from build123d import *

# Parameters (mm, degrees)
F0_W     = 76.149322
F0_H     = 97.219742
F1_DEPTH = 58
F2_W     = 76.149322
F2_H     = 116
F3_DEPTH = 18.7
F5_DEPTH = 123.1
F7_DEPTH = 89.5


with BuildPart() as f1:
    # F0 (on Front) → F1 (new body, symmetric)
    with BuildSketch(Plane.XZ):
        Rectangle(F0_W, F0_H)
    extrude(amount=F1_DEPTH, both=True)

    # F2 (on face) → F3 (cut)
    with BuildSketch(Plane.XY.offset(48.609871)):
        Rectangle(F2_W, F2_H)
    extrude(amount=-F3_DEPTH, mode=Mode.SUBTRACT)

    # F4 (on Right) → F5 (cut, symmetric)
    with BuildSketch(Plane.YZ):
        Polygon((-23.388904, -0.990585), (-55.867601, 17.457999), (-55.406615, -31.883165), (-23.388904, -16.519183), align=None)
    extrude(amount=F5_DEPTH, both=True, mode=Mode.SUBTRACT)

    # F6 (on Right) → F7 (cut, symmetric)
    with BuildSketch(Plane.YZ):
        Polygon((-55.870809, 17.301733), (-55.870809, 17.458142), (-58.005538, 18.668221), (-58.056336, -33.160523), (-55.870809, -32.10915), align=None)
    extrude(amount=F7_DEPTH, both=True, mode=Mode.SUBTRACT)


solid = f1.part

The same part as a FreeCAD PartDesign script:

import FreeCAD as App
import Part
import Sketcher
from FreeCAD import Vector
Q = App.Units.Quantity


def add_polygon(sketch, points):
    """Adds a closed chain of lines whose ends are joined by coincident constraints."""
    first, n = sketch.GeometryCount, len(points)
    for a, b in zip(points, points[1:] + points[:1]):
        sketch.addGeometry(Part.LineSegment(App.Vector(*a, 0), App.Vector(*b, 0)), False)
    for i in range(n):
        sketch.addConstraint(Sketcher.Constraint("Coincident", first + i, 2, first + (i + 1) % n, 1))

doc = App.newDocument("Part")
params = doc.addObject("Spreadsheet::Sheet", "Params")
for row, (alias, value) in enumerate([
    ("pad1_length", "116 mm"),
    ("sketch2_height", "116 mm"),
    ("pocket1_length", "18.7 mm"),
    ("pocket2_length", "246.2 mm"),
    ("pocket3_length", "179 mm"),
], start=1):
    params.set(f"A{row}", alias)
    params.set(f"B{row}", "=" + value)
    params.setAlias(f"B{row}", alias)

body = doc.addObject("PartDesign::Body", "Body")

# Sketch on XZ plane
sketch1 = body.newObject("Sketcher::SketchObject", "Sketch")
sketch1.AttachmentSupport = (doc.getObject("XZ_Plane"), [""])
sketch1.MapMode = "FlatFace"
add_polygon(sketch1, [(-38.074661, 48.609871), (-38.074661, -48.609871), (38.074661, -48.609871), (38.074661, 48.609871)])  # lines 0-3
sketch1.addConstraint(Sketcher.Constraint("Vertical", 0))
sketch1.addConstraint(Sketcher.Constraint("Horizontal", 1))
sketch1.addConstraint(Sketcher.Constraint("Vertical", 2))
sketch1.addConstraint(Sketcher.Constraint("Horizontal", 3))
sketch1.addConstraint(Sketcher.Constraint("Symmetric", 0, 2, 2, 2, -1, 1))
sketch1.addConstraint(Sketcher.Constraint("DistanceX", 1, 1, 1, 2, Q("76.149322 mm")))
sketch1.addConstraint(Sketcher.Constraint("DistanceY", 0, 2, 0, 1, Q("97.219742 mm")))
pad1 = body.newObject("PartDesign::Pad", "Pad")
pad1.Profile = sketch1
pad1.setExpression("Length", "Params.pad1_length")
pad1.Midplane = True

# Sketch on XY plane
sketch2 = body.newObject("Sketcher::SketchObject", "Sketch001")
sketch2.AttachmentSupport = (doc.getObject("XY_Plane"), [""])
sketch2.MapMode = "FlatFace"
sketch2.AttachmentOffset = App.Placement(Vector(0, 0, 48.609871), App.Rotation())
add_polygon(sketch2, [(-38.074661, 58), (-38.074661, -58), (38.074661, -58), (38.074661, 58)])  # lines 0-3
sketch2.addConstraint(Sketcher.Constraint("Vertical", 0))
sketch2.addConstraint(Sketcher.Constraint("Horizontal", 1))
sketch2.addConstraint(Sketcher.Constraint("Vertical", 2))
sketch2.addConstraint(Sketcher.Constraint("Horizontal", 3))
sketch2.addConstraint(Sketcher.Constraint("Symmetric", 0, 2, 2, 2, -1, 1))
sketch2.addConstraint(Sketcher.Constraint("DistanceY", 0, 2, 0, 1, Q("116 mm")))
sketch2.addConstraint(Sketcher.Constraint("DistanceX", 1, 1, 1, 2, Q("76.149322 mm")))
sketch2.setExpression("Constraints[9]", "Params.sketch2_height")
pocket1 = body.newObject("PartDesign::Pocket", "Pocket")
pocket1.Profile = sketch2
pocket1.setExpression("Length", "Params.pocket1_length")

# Sketch on YZ plane
sketch3 = body.newObject("Sketcher::SketchObject", "Sketch002")
sketch3.AttachmentSupport = (doc.getObject("YZ_Plane"), [""])
sketch3.MapMode = "FlatFace"
add_polygon(sketch3, [(-23.388904, -0.990585), (-55.867601, 17.457999), (-55.406615, -31.883165), (-23.388904, -16.519183)])  # lines 0-3
sketch3.addConstraint(Sketcher.Constraint("Vertical", 3))
sketch3.addConstraint(Sketcher.Constraint("DistanceY", 3, 1, 3, 2, Q("15.528598 mm")))
sketch3.addConstraint(Sketcher.Constraint("DistanceY", -1, 1, 0, 2, Q("17.457999 mm")))
sketch3.addConstraint(Sketcher.Constraint("DistanceX", 0, 2, -1, 1, Q("55.867601 mm")))
sketch3.addConstraint(Sketcher.Constraint("Distance", 0, Q("37.35259 mm")))
sketch3.addConstraint(Sketcher.Constraint("DistanceX", 1, 2, 2, 2, Q("32.017711 mm")))
sketch3.addConstraint(Sketcher.Constraint("DistanceY", 1, 2, 3, 2, Q("30.89258 mm")))
sketch3.addConstraint(Sketcher.Constraint("Distance", 1, Q("49.343317 mm")))
pocket2 = body.newObject("PartDesign::Pocket", "Pocket001")
pocket2.Profile = sketch3
pocket2.setExpression("Length", "Params.pocket2_length")
pocket2.Midplane = True

# Sketch on YZ plane
sketch4 = body.newObject("Sketcher::SketchObject", "Sketch003")
sketch4.AttachmentSupport = (doc.getObject("YZ_Plane"), [""])
sketch4.MapMode = "FlatFace"
add_polygon(sketch4, [(-55.870809, 17.458142), (-58.005538, 18.668221), (-58.056336, -33.160523), (-55.870809, -32.10915)])  # lines 0-3
sketch4.addConstraint(Sketcher.Constraint("Vertical", 3))
sketch4.addConstraint(Sketcher.Constraint("DistanceY", 3, 1, 3, 2, Q("49.567292 mm")))
sketch4.addConstraint(Sketcher.Constraint("DistanceX", 1, 2, 0, 2, Q("0.050798 mm")))
sketch4.addConstraint(Sketcher.Constraint("Distance", 1, Q("51.828769 mm")))
sketch4.addConstraint(Sketcher.Constraint("DistanceY", -1, 1, 0, 2, Q("18.668221 mm")))
sketch4.addConstraint(Sketcher.Constraint("DistanceX", 2, 2, -1, 1, Q("55.870809 mm")))
sketch4.addConstraint(Sketcher.Constraint("DistanceY", 2, 2, -1, 1, Q("32.10915 mm")))
sketch4.addConstraint(Sketcher.Constraint("DistanceX", 0, 2, 2, 2, Q("2.134729 mm")))
pocket3 = body.newObject("PartDesign::Pocket", "Pocket002")
pocket3.Profile = sketch4
pocket3.setExpression("Length", "Params.pocket3_length")
pocket3.Midplane = True

doc.recompute()
